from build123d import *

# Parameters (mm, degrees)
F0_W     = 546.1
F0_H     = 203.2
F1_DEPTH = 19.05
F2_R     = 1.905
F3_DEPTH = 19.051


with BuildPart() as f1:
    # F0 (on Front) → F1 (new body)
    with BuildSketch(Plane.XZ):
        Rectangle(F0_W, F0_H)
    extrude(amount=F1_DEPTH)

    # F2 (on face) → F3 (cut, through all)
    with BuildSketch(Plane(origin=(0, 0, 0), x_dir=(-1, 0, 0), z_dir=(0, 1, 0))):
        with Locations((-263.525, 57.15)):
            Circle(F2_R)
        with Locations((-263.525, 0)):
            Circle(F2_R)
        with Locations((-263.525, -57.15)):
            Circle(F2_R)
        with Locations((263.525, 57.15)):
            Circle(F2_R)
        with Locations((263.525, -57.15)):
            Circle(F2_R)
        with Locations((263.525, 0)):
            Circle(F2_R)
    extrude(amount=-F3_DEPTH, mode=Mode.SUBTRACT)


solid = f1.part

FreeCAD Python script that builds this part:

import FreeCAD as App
import Part
import Sketcher

V = App.Vector
Q = App.Units.Quantity

doc = App.newDocument("Part")
body = doc.addObject("PartDesign::Body", "Body")

sketch1 = doc.addObject("Sketcher::SketchObject", "Sketch")
body.addObject(sketch1)
sketch1.AttachmentSupport = (doc.XZ_Plane, [""])
sketch1.MapMode = "FlatFace"
sketch1.addGeometry(Part.LineSegment(V(-273, 102, 0), V(-273, -102, 0)), False)
sketch1.addGeometry(Part.LineSegment(V(-273, -102, 0), V(273, -102, 0)), False)
sketch1.addGeometry(Part.LineSegment(V(273, -102, 0), V(273, 102, 0)), False)
sketch1.addGeometry(Part.LineSegment(V(273, 102, 0), V(-273, 102, 0)), False)
sketch1.addConstraint(Sketcher.Constraint("Coincident", 0, 2, 1, 1))
sketch1.addConstraint(Sketcher.Constraint("Coincident", 1, 2, 2, 1))
sketch1.addConstraint(Sketcher.Constraint("Coincident", 2, 2, 3, 1))
sketch1.addConstraint(Sketcher.Constraint("Coincident", 3, 2, 0, 1))
sketch1.addConstraint(Sketcher.Constraint("Vertical", 0))
sketch1.addConstraint(Sketcher.Constraint("Horizontal", 1))
sketch1.addConstraint(Sketcher.Constraint("Vertical", 2))
sketch1.addConstraint(Sketcher.Constraint("Horizontal", 3))
sketch1.addConstraint(Sketcher.Constraint("Symmetric", 0, 2, 2, 2, -1, 1))
sketch1.addConstraint(Sketcher.Constraint("DistanceY", 0, 2, 0, 1, Q("8 in")))
sketch1.addConstraint(Sketcher.Constraint("DistanceX", 1, 1, 1, 2, Q("21.5 in")))
pad1 = doc.addObject("PartDesign::Pad", "Pad")
body.addObject(pad1)
pad1.Profile = sketch1
pad1.Length = Q("0.75 in")

sketch2 = doc.addObject("Sketcher::SketchObject", "Sketch001")
body.addObject(sketch2)
sketch2.AttachmentSupport = (doc.XZ_Plane, [""])
sketch2.MapMode = "FlatFace"
sketch2.addGeometry(Part.Circle(V(263.5, 57.1, 0), V(0, 0, 1), 1.9), False)
sketch2.addGeometry(Part.Circle(V(263.5, 0, 0), V(0, 0, 1), 1.9), False)
sketch2.addGeometry(Part.Circle(V(263.5, -57.1, 0), V(0, 0, 1), 1.9), False)
sketch2.addGeometry(Part.Circle(V(-263.5, 57.1, 0), V(0, 0, 1), 1.9), False)
sketch2.addGeometry(Part.Circle(V(-263.5, -57.1, 0), V(0, 0, 1), 1.9), False)
sketch2.addGeometry(Part.Circle(V(-263.5, 0, 0), V(0, 0, 1), 1.9), False)
sketch2.addConstraint(Sketcher.Constraint("Equal", 0, 1))
sketch2.addConstraint(Sketcher.Constraint("Equal", 1, 2))
sketch2.addConstraint(Sketcher.Constraint("Equal", 2, 3))
sketch2.addConstraint(Sketcher.Constraint("Equal", 3, 4))
sketch2.addConstraint(Sketcher.Constraint("Equal", 4, 5))
sketch2.addConstraint(Sketcher.Constraint("Symmetric", 2, 3, 3, 3, -1, 1))
sketch2.addConstraint(Sketcher.Constraint("Symmetric", 0, 3, 4, 3, -1, 1))
sketch2.addConstraint(Sketcher.Constraint("Symmetric", 1, 3, 5, 3, -1, 1))
sketch2.addConstraint(Sketcher.Constraint("Symmetric", 0, 3, 3, 3, -2))
sketch2.addConstraint(Sketcher.Constraint("PointOnObject", 1, 3, -1))
sketch2.addConstraint(Sketcher.Constraint("Vertical", 0, 3, 1, 3))
sketch2.addConstraint(Sketcher.Constraint("Diameter", 0, Q("0.15 in")))
sketch2.addConstraint(Sketcher.Constraint("DistanceY", 2, 3, 0, 3, Q("4.5 in")))
sketch2.addConstraint(Sketcher.Constraint("DistanceX", 3, 3, 0, 3, Q("20.75 in")))
pocket1 = doc.addObject("PartDesign::Pocket", "Pocket")
body.addObject(pocket1)
pocket1.Profile = sketch2
pocket1.Type = "ThroughAll"
pocket1.Reversed = True

doc.recompute()
